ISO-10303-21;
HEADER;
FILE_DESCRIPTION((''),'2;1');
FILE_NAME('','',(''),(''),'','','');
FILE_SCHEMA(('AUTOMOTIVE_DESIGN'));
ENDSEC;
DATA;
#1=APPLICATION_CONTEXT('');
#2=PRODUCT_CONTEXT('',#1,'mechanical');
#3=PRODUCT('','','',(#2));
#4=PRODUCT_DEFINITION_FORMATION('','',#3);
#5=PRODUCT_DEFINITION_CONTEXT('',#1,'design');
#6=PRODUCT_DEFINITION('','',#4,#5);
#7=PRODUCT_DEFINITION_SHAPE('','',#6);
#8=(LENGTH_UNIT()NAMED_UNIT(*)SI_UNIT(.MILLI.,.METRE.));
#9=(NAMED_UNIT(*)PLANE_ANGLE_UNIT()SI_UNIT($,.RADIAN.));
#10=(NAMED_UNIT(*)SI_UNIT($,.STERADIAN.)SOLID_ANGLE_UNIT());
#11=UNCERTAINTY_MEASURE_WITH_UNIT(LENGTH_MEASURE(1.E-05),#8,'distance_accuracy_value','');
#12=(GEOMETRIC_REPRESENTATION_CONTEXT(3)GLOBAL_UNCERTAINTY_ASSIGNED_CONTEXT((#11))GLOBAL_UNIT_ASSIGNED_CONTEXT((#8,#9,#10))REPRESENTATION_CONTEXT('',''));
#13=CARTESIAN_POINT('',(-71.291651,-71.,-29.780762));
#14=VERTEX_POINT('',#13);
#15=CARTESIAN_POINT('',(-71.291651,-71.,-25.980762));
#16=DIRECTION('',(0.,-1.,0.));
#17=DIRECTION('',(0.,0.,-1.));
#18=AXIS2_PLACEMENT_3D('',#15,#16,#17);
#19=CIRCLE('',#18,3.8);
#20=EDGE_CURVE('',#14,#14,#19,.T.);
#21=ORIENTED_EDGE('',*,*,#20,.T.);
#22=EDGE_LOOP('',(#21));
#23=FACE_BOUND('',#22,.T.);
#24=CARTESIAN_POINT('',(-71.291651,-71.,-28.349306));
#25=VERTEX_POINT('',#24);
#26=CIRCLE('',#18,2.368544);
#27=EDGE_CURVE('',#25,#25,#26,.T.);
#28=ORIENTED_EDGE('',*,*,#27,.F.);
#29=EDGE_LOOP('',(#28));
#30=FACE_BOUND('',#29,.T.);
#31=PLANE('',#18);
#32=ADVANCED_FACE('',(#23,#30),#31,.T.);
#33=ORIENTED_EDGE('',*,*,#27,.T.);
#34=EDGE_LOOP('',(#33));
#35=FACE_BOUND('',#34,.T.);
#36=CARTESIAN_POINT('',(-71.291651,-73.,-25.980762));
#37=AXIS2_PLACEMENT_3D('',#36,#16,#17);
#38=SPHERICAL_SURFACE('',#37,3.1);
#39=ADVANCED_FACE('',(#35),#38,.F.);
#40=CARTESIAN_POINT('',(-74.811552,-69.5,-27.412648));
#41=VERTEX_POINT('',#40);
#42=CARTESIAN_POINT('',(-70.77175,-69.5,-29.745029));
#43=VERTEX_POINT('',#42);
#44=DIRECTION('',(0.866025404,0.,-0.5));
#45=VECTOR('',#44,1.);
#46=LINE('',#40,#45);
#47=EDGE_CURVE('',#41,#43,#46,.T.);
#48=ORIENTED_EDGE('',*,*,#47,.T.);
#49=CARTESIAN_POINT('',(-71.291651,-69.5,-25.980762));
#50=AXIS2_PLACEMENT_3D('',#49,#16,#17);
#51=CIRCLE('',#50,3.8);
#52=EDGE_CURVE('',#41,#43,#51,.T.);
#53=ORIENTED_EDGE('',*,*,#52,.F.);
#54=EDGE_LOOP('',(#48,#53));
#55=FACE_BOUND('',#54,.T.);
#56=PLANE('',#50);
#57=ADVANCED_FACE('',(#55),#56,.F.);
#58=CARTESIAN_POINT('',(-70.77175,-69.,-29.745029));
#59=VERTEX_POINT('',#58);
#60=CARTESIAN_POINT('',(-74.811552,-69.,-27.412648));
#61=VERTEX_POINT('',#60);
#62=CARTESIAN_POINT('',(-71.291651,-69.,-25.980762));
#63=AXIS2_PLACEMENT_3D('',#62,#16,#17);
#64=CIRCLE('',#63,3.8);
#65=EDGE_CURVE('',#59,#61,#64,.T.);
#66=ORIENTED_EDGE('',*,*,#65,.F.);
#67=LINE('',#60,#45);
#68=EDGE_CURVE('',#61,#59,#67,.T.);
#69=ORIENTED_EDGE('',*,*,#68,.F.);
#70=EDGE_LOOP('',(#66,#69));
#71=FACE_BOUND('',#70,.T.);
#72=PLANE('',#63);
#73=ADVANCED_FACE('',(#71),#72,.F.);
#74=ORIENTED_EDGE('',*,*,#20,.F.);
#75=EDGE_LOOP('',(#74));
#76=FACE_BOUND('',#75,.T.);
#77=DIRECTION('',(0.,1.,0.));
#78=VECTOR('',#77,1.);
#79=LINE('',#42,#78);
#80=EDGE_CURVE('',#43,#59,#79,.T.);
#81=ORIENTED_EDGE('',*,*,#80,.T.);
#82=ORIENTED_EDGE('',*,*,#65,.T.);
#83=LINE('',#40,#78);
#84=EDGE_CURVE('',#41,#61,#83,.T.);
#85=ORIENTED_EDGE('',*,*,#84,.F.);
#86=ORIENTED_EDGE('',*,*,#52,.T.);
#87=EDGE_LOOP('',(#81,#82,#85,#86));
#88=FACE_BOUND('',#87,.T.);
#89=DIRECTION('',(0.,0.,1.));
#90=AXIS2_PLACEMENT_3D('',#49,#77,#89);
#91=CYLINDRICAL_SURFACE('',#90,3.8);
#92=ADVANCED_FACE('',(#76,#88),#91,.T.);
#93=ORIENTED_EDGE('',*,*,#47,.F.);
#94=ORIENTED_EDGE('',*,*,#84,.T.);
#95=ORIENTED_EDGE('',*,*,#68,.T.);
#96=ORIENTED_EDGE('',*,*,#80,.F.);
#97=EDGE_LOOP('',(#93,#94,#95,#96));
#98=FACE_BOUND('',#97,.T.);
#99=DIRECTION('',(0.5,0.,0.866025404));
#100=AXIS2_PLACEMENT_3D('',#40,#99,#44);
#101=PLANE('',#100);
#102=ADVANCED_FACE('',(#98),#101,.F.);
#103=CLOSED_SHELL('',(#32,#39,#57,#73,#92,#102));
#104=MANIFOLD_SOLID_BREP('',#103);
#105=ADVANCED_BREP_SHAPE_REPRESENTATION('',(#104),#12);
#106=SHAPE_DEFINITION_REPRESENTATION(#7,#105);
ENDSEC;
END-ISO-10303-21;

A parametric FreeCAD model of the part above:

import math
import FreeCAD as App
import Part
import Sketcher
Q = App.Units.Quantity

doc = App.newDocument("Part")
body = doc.addObject("PartDesign::Body", "Body")

sketch1 = doc.addObject("Sketcher::SketchObject", "Sketch")
body.addObject(sketch1)
sketch1.AttachmentSupport = (doc.XZ_Plane, [""])
sketch1.MapMode = "FlatFace"
sketch1.AttachmentOffset = App.Placement(App.Vector(0, 0, 69), App.Rotation())
sketch1.addGeometry([
    Part.LineSegment(App.Vector(-74.8, -27.4, 0), App.Vector(-70.8, -29.7, 0)),
    Part.ArcOfCircle(Part.Circle(App.Vector(-71.3, -26, 0), App.Vector(0, 0, 1), 3.8), math.radians(-82), math.radians(202)),
], False)
sketch1.addConstraint([
    Sketcher.Constraint("Coincident", 0, 1, 1, 2),
    Sketcher.Constraint("Coincident", 1, 1, 0, 2),
    Sketcher.Constraint("Radius", 1, Q("3.8 mm")),
    Sketcher.Constraint("Angle", 0, Q("-30 deg")),
    Sketcher.Constraint("DistanceX", 0, 1, 1, 3, Q("3.519901 mm")),
    Sketcher.Constraint("DistanceX", 1, 3, -1, 1, Q("71.291651 mm")),
    Sketcher.Constraint("DistanceY", 1, 1, -1, 1, Q("29.745029 mm")),
])
pad1 = doc.addObject("PartDesign::Pad", "Pad")
body.addObject(pad1)
pad1.Profile = sketch1
pad1.Length = 0.5

sketch2 = doc.addObject("Sketcher::SketchObject", "Sketch001")
body.addObject(sketch2)
sketch2.AttachmentSupport = (doc.XZ_Plane, [""])
sketch2.MapMode = "FlatFace"
sketch2.AttachmentOffset = App.Placement(App.Vector(0, 0, 69.5), App.Rotation())
sketch2.addGeometry(Part.Circle(App.Vector(-71.3, -26, 0), App.Vector(0, 0, 1), 3.8), False)
sketch2.addConstraint([
    Sketcher.Constraint("Diameter", 0, Q("7.6 mm")),
    Sketcher.Constraint("DistanceX", 0, 3, -1, 1, Q("71.291651 mm")),
    Sketcher.Constraint("DistanceY", 0, 3, -1, 1, Q("25.980762 mm")),
])
pad2 = doc.addObject("PartDesign::Pad", "Pad001")
body.addObject(pad2)
pad2.Profile = sketch2
pad2.Length = 1.5

sketch3 = doc.addObject("Sketcher::SketchObject", "Sketch002")
body.addObject(sketch3)
sketch3.AttachmentSupport = (doc.XZ_Plane, [""])
sketch3.MapMode = "FlatFace"
sketch3.AttachmentOffset = App.Placement(App.Vector(0, 0, 73), App.Rotation())
sketch3.addGeometry([
    Part.LineSegment(App.Vector(-71.3, -22.9, 0), App.Vector(-71.3, -29.1, 0)),
    Part.ArcOfCircle(Part.Circle(App.Vector(-71.3, -26, 0), App.Vector(0, 0, 1), 3.1), math.radians(-90), math.radians(90)),
], False)
sketch3.addGeometry(Part.LineSegment(App.Vector(-71.3, -29.1, 0), App.Vector(-71.3, -22.9, 0)), True)
sketch3.addConstraint([
    Sketcher.Constraint("Coincident", 0, 1, 1, 2),
    Sketcher.Constraint("Coincident", 1, 1, 0, 2),
    Sketcher.Constraint("Vertical", 0),
    Sketcher.Constraint("Vertical", 2),
    Sketcher.Constraint("Coincident", 2, 1, 1, 1),
    Sketcher.Constraint("Vertical", 1, 3, 0, 1),
    Sketcher.Constraint("Equal", 0, 2),
    Sketcher.Constraint("Radius", 1, Q("3.1 mm")),
    Sketcher.Constraint("DistanceX", 1, 3, -1, 1, Q("71.291651 mm")),
    Sketcher.Constraint("DistanceY", 1, 3, -1, 1, Q("25.980762 mm")),
])
groove = doc.addObject("PartDesign::Groove", "Groove")
body.addObject(groove)
groove.Profile = sketch3
groove.ReferenceAxis = (sketch3, ["Axis0"])
groove.Angle = 360

doc.recompute()
